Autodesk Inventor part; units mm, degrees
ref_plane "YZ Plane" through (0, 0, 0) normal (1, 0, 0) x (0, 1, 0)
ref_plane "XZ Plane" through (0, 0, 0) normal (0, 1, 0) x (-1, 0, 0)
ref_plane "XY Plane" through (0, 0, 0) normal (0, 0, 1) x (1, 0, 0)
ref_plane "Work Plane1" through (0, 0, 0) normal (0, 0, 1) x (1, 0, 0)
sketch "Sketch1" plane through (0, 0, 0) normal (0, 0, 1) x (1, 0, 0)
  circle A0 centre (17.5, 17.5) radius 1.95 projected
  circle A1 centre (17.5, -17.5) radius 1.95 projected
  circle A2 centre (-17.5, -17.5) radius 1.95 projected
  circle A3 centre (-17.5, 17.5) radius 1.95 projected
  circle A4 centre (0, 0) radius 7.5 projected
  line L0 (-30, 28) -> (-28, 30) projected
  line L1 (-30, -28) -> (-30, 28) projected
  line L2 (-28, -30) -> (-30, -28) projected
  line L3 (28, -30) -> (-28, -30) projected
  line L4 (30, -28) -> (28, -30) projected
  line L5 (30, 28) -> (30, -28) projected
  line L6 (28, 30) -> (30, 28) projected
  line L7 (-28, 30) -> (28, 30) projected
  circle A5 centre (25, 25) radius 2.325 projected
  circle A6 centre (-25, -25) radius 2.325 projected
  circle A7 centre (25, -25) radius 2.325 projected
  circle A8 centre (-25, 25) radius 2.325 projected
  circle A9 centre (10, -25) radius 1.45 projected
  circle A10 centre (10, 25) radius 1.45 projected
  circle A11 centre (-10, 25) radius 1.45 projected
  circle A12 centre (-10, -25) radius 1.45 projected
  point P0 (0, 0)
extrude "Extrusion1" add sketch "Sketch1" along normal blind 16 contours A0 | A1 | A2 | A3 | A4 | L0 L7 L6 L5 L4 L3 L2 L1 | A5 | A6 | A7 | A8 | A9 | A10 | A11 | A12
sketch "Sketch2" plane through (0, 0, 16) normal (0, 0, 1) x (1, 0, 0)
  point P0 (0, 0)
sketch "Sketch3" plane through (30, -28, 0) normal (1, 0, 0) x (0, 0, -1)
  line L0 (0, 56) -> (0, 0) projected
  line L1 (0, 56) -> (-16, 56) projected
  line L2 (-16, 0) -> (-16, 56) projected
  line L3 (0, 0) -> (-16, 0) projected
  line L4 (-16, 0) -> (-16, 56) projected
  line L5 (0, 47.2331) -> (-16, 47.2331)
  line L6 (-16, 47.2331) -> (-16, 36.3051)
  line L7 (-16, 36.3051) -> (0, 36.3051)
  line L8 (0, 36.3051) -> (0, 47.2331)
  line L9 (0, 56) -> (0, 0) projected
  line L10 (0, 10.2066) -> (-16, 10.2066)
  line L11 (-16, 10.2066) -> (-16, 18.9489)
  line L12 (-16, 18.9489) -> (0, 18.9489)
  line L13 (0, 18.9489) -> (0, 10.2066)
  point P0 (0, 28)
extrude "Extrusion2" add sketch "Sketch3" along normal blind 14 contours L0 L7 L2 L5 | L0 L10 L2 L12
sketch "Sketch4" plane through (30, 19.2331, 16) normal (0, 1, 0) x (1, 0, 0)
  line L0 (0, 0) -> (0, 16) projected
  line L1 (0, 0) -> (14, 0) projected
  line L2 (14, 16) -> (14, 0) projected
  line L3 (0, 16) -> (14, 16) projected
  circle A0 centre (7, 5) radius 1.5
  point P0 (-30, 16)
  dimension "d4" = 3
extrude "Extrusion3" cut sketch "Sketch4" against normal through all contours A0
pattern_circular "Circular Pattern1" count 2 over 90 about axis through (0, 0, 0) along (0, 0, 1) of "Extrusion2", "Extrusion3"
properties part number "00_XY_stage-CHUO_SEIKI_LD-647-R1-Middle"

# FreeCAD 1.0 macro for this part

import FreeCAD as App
import Part
import Sketcher
from FreeCAD import Vector


def add_polygon(sketch, points):
    """Adds a closed chain of lines whose ends are joined by coincident constraints."""
    first, n = sketch.GeometryCount, len(points)
    for a, b in zip(points, points[1:] + points[:1]):
        sketch.addGeometry(Part.LineSegment(App.Vector(*a, 0), App.Vector(*b, 0)), False)
    for i in range(n):
        sketch.addConstraint(Sketcher.Constraint("Coincident", first + i, 2, first + (i + 1) % n, 1))

doc = App.newDocument("Part")
params = doc.addObject("Spreadsheet::Sheet", "Params")
for row, (alias, value) in enumerate([
    ("sketch1_width", "56 mm"),
    ("pad1_length", "16 mm"),
    ("sketch2_height", "16 mm"),
    ("pad2_length", "14 mm"),
    ("sketch3_diameter", "3 mm"),
], start=1):
    params.set(f"A{row}", alias)
    params.set(f"B{row}", "=" + value)
    params.setAlias(f"B{row}", alias)

body = doc.addObject("PartDesign::Body", "Body")

# Sketch on XY plane
sketch1 = doc.addObject("Sketcher::SketchObject", "Sketch")
body.addObject(sketch1)
sketch1.AttachmentSupport = (doc.XY_Plane, [""])
sketch1.MapMode = "FlatFace"
add_polygon(sketch1, [(-28, 30), (-30, 28), (-30, -28), (-28, -30), (28, -30), (30, -28), (30, 28), (28, 30)])  # lines 0-7
sketch1.addConstraint(Sketcher.Constraint("Vertical", 1))
sketch1.addConstraint(Sketcher.Constraint("Horizontal", 3))
sketch1.addConstraint(Sketcher.Constraint("Vertical", 5))
sketch1.addConstraint(Sketcher.Constraint("Horizontal", 7))
sketch1.addConstraint(Sketcher.Constraint("Symmetric", 0, 2, 4, 2, -1, 1))
sketch1.addConstraint(Sketcher.Constraint("Symmetric", 2, 2, 6, 2, -1, 1))
sketch1.addConstraint(Sketcher.Constraint("Perpendicular", 0, 2))
sketch1.addConstraint(Sketcher.Constraint("Perpendicular", 2, 4))
sketch1.addConstraint(Sketcher.Constraint("Perpendicular", 4, 6))
sketch1.addConstraint(Sketcher.Constraint("Horizontal", 1, 2, 4, 2))
sketch1.addConstraint(Sketcher.Constraint("Vertical", 3, 2, 6, 2))
sketch1.addConstraint(Sketcher.Constraint("Equal", 7, 1))
sketch1.addConstraint(Sketcher.Constraint("DistanceX", 3, 1, 3, 2, 56.0))
sketch1.addConstraint(Sketcher.Constraint("DistanceX", 0, 2, -1, 1, 30.0))
sketch1.setExpression("Constraints[20]", "Params.sketch1_width")
pad1 = doc.addObject("PartDesign::Pad", "Pad")
body.addObject(pad1)
pad1.Profile = sketch1
pad1.setExpression("Length", "Params.pad1_length")

# Sketch on YZ plane
sketch2 = doc.addObject("Sketcher::SketchObject", "Sketch001")
body.addObject(sketch2)
sketch2.AttachmentSupport = (doc.YZ_Plane, [""])
sketch2.MapMode = "FlatFace"
sketch2.AttachmentOffset = App.Placement(Vector(0, 0, 30), App.Rotation())
add_polygon(sketch2, [(8, 0), (19, 0), (19, 16), (8, 16)])  # lines 0-3
add_polygon(sketch2, [(-18, 0), (-9, 0), (-9, 16), (-18, 16)])  # lines 4-7
sketch2.addConstraint(Sketcher.Constraint("Horizontal", 0))
sketch2.addConstraint(Sketcher.Constraint("Vertical", 1))
sketch2.addConstraint(Sketcher.Constraint("Horizontal", 2))
sketch2.addConstraint(Sketcher.Constraint("Vertical", 3))
sketch2.addConstraint(Sketcher.Constraint("Horizontal", 4))
sketch2.addConstraint(Sketcher.Constraint("Vertical", 5))
sketch2.addConstraint(Sketcher.Constraint("Horizontal", 6))
sketch2.addConstraint(Sketcher.Constraint("Vertical", 7))
sketch2.addConstraint(Sketcher.Constraint("PointOnObject", 0, 2, -1))
sketch2.addConstraint(Sketcher.Constraint("PointOnObject", 4, 2, -1))
sketch2.addConstraint(Sketcher.Constraint("Horizontal", 2, 2, 5, 2))
sketch2.addConstraint(Sketcher.Constraint("DistanceY", 1, 1, 1, 2, 16.0))
sketch2.addConstraint(Sketcher.Constraint("DistanceX", 0, 1, 0, 2, 10.928))
sketch2.addConstraint(Sketcher.Constraint("DistanceX", 4, 1, 4, 2, 8.7423))
sketch2.addConstraint(Sketcher.Constraint("DistanceX", -1, 1, 0, 2, 19.233))
sketch2.addConstraint(Sketcher.Constraint("DistanceX", 4, 2, -1, 1, 9.051))
sketch2.setExpression("Constraints[19]", "Params.sketch2_height")
pad2 = doc.addObject("PartDesign::Pad", "Pad001")
body.addObject(pad2)
pad2.Profile = sketch2
pad2.setExpression("Length", "Params.pad2_length")

# Sketch on XZ plane
sketch3 = doc.addObject("Sketcher::SketchObject", "Sketch002")
body.addObject(sketch3)
sketch3.AttachmentSupport = (doc.XZ_Plane, [""])
sketch3.MapMode = "FlatFace"
sketch3.AttachmentOffset = App.Placement(Vector(0, 0, -19.2331), App.Rotation())
sketch3.addGeometry(Part.Circle(Vector(37, 11, 0), Vector(0, 0, 1), 1.5), False)
sketch3.addConstraint(Sketcher.Constraint("Diameter", 0, 3.0))
sketch3.addConstraint(Sketcher.Constraint("DistanceX", -1, 1, 0, 3, 37.0))
sketch3.addConstraint(Sketcher.Constraint("DistanceY", -1, 1, 0, 3, 11.0))
sketch3.setExpression("Constraints[0]", "Params.sketch3_diameter")
pocket1 = doc.addObject("PartDesign::Pocket", "Pocket")
body.addObject(pocket1)
pocket1.Profile = sketch3
pocket1.Type = "ThroughAll"
pocket1.Reversed = True
doc.recompute()

polarpattern = doc.addObject("PartDesign::PolarPattern", "PolarPattern")
body.addObject(polarpattern)
polarpattern.Originals = [pad2, pocket1]
polarpattern.Axis = (doc.Z_Axis, [""])
polarpattern.Angle = 90
polarpattern.Occurrences = 2
body.Tip = polarpattern

doc.recompute()
